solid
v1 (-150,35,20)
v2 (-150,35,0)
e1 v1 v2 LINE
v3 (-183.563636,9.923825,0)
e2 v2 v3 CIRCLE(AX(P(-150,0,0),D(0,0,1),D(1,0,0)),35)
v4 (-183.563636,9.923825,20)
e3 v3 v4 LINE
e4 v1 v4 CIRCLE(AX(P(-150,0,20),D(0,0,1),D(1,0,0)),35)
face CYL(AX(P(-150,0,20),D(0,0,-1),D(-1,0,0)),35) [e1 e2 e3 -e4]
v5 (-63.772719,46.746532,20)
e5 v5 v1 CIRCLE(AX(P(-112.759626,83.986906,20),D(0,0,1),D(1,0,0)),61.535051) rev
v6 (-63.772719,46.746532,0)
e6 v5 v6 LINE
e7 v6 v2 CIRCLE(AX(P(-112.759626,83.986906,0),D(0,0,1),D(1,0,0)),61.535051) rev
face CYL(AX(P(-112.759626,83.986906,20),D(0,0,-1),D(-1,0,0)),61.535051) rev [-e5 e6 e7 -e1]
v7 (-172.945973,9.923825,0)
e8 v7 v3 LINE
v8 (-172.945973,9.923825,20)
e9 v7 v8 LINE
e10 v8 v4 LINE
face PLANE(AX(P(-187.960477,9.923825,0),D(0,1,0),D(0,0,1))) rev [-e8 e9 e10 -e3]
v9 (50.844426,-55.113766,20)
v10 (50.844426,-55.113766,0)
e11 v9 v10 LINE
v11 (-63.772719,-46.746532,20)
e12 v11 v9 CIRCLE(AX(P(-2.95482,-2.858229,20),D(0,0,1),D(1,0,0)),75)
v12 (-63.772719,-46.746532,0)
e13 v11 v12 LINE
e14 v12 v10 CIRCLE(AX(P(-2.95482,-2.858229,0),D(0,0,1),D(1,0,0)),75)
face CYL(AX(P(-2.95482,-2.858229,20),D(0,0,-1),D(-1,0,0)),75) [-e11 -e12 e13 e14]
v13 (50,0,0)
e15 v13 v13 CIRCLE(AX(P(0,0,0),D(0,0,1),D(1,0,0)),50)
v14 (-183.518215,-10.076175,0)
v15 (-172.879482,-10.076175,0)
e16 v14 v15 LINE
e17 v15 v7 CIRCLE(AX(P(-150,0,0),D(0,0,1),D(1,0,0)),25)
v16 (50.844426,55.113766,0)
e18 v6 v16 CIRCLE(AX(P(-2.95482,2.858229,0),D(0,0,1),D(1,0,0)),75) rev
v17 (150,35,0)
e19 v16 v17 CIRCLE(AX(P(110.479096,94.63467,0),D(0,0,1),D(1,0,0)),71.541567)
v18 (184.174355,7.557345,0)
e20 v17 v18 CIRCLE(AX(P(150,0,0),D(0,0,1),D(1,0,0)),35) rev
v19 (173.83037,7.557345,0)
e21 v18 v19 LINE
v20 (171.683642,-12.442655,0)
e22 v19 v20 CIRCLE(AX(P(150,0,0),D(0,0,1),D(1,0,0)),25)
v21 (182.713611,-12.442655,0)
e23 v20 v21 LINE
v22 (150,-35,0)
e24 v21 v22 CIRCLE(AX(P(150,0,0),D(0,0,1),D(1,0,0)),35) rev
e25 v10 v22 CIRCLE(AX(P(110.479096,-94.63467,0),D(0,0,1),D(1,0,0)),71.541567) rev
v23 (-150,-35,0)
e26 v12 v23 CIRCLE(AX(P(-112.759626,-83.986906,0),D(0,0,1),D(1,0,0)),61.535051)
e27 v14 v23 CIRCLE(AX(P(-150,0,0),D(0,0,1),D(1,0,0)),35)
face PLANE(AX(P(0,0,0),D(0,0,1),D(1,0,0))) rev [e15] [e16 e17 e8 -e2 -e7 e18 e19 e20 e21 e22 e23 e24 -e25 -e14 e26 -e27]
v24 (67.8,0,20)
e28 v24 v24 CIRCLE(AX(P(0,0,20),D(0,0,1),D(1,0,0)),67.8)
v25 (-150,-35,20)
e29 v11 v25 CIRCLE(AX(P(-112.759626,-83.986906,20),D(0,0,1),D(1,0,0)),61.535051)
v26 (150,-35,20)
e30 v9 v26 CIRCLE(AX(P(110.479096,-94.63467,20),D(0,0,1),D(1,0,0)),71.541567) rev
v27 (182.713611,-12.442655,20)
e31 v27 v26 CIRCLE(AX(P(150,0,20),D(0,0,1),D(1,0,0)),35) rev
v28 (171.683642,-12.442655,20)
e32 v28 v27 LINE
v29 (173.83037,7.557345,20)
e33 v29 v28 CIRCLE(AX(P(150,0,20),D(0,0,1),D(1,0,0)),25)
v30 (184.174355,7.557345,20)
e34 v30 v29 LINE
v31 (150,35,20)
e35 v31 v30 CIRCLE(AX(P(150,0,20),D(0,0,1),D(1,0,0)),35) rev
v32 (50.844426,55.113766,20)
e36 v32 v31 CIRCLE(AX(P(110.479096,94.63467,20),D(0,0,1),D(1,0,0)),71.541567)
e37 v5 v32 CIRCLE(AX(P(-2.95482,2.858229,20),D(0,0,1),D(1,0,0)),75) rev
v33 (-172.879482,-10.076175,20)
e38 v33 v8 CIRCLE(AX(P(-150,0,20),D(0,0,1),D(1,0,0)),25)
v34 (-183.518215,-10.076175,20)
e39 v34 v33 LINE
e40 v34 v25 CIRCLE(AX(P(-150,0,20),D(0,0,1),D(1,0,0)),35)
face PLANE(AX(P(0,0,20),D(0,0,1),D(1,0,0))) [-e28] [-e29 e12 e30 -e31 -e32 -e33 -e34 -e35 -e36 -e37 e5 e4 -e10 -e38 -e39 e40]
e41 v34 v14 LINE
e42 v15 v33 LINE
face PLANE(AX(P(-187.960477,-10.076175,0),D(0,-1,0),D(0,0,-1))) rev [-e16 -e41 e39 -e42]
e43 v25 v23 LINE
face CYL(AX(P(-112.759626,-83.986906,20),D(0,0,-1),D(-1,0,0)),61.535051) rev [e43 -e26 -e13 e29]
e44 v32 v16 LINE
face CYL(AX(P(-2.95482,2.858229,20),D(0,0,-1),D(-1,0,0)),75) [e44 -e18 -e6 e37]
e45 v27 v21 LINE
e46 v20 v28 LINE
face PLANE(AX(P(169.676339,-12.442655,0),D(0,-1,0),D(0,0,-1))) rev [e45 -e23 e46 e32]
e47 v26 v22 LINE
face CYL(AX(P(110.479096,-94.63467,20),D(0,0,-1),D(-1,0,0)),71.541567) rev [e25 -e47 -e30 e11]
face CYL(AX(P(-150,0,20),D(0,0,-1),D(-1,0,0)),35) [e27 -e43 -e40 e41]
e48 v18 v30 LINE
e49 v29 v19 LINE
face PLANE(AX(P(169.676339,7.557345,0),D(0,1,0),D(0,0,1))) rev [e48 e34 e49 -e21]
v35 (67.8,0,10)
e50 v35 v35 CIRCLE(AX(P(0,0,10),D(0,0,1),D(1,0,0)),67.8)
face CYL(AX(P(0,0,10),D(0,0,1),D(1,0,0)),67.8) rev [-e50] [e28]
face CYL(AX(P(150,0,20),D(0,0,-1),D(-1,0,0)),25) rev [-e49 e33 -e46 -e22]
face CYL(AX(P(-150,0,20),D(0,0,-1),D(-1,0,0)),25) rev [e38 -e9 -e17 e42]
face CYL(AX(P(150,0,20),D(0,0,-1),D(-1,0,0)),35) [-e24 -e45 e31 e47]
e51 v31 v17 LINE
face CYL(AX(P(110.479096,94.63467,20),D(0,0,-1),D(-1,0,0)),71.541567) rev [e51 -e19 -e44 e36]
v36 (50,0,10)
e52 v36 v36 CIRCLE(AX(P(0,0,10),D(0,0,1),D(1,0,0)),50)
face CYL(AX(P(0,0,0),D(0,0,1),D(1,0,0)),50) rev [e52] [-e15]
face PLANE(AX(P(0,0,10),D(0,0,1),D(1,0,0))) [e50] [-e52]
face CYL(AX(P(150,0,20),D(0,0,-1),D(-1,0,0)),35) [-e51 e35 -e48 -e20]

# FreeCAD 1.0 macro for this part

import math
import FreeCAD as App
import Part
import Sketcher

V = App.Vector
Q = App.Units.Quantity


def add_polygon(sketch, points):
    """Adds a closed chain of lines whose ends are joined by coincident constraints."""
    first, n = sketch.GeometryCount, len(points)
    for a, b in zip(points, points[1:] + points[:1]):
        sketch.addGeometry(Part.LineSegment(App.Vector(*a, 0), App.Vector(*b, 0)), False)
    for i in range(n):
        sketch.addConstraint(Sketcher.Constraint("Coincident", first + i, 2, first + (i + 1) % n, 1))

doc = App.newDocument("Part")
body = doc.addObject("PartDesign::Body", "Body")

# Sketch on XY plane
sketch1 = body.newObject("Sketcher::SketchObject", "Sketch")
sketch1.AttachmentSupport = (doc.getObject("XY_Plane"), [""])
sketch1.MapMode = "FlatFace"
sketch1.addGeometry([
    Part.Circle(V(0, 0, 0), V(0, 0, 1), 67.8),
    Part.Circle(V(0, 0, 0), V(0, 0, 1), 50),
], False)
sketch1.addConstraint([
    Sketcher.Constraint("Coincident", 0, 3, -1, 1),
    Sketcher.Constraint("Coincident", 1, 3, -1, 1),
    Sketcher.Constraint("Diameter", 1, Q("100 mm")),
    Sketcher.Constraint("Diameter", 0, Q("135.6 mm")),
])
pad1 = body.newObject("PartDesign::Pad", "Pad")
pad1.Profile = sketch1
pad1.Length = 10

# Sketch on XY plane
sketch2 = body.newObject("Sketcher::SketchObject", "Sketch001")
sketch2.AttachmentSupport = (doc.getObject("XY_Plane"), [""])
sketch2.MapMode = "FlatFace"
sketch2.addGeometry([
    Part.ArcOfCircle(Part.Circle(V(-2.95482, 2.858229, 0), V(0, 0, 1), 75), math.radians(44.166075), math.radians(144.184478)),  # 0
    Part.ArcOfCircle(Part.Circle(V(-112.759626, 83.986906, 0), V(0, 0, 1), 61.535051), math.radians(-127.242488), math.radians(-37.242488)),  # 1
    Part.ArcOfCircle(Part.Circle(V(-150, 0, 0), V(0, 0, 1), 35), math.radians(90), math.radians(270)),  # 2
    Part.ArcOfCircle(Part.Circle(V(-112.759626, -83.986906, 0), V(0, 0, 1), 61.535051), math.radians(37.242488), math.radians(127.242488)),  # 3
    Part.ArcOfCircle(Part.Circle(V(-2.95482, -2.858229, 0), V(0, 0, 1), 75), math.radians(-144.184478), math.radians(-44.166075)),  # 4
    Part.ArcOfCircle(Part.Circle(V(110.479096, -94.63467, 0), V(0, 0, 1), 71.541567), math.radians(56.46689), math.radians(146.46689)),  # 5
    Part.ArcOfCircle(Part.Circle(V(150, 0, 0), V(0, 0, 1), 35), math.radians(-90), math.radians(90)),  # 6
    Part.ArcOfCircle(Part.Circle(V(110.479096, 94.63467, 0), V(0, 0, 1), 71.541567), math.radians(-146.46689), math.radians(-56.46689)),  # 7
    Part.Circle(V(150, 0, 0), V(0, 0, 1), 25),  # 8
    Part.Circle(V(-150, 0, 0), V(0, 0, 1), 25),  # 9
], False)
sketch2.addConstraint([
    Sketcher.Constraint("Coincident", 0, 2, 1, 2),
    Sketcher.Constraint("Coincident", 1, 1, 2, 1),
    Sketcher.Constraint("Coincident", 2, 2, 3, 2),
    Sketcher.Constraint("Coincident", 3, 1, 4, 1),
    Sketcher.Constraint("Coincident", 4, 2, 5, 2),
    Sketcher.Constraint("Coincident", 5, 1, 6, 1),
    Sketcher.Constraint("Coincident", 6, 2, 7, 2),
    Sketcher.Constraint("Coincident", 7, 1, 0, 1),
    Sketcher.Constraint("Coincident", 8, 3, 6, 3),
    Sketcher.Constraint("Coincident", 9, 3, 2, 3),
    Sketcher.Constraint("Equal", 1, 3),
    Sketcher.Constraint("Equal", 0, 4),
    Sketcher.Constraint("Equal", 2, 6),
    Sketcher.Constraint("Equal", 5, 7),
    Sketcher.Constraint("Equal", 8, 9),
    Sketcher.Constraint("Symmetric", 2, 3, 6, 3, -1, 1),
    Sketcher.Constraint("Symmetric", 2, 2, 5, 1, -2),
    Sketcher.Constraint("Symmetric", 1, 3, 3, 3, -1),
    Sketcher.Constraint("Symmetric", 0, 3, 4, 3, -1),
    Sketcher.Constraint("Symmetric", 5, 3, 7, 3, -1),
    Sketcher.Constraint("Vertical", 9, 3, 1, 1),
    Sketcher.Constraint("Diameter", 8, Q("50 mm")),
    Sketcher.Constraint("Radius", 0, Q("75 mm")),
    Sketcher.Constraint("Radius", 2, Q("35 mm")),
    Sketcher.Constraint("DistanceX", 2, 3, -1, 1, Q("150 mm")),
    Sketcher.Constraint("Radius", 1, Q("61.535051 mm")),
    Sketcher.Constraint("Radius", 5, Q("71.541567 mm")),
    Sketcher.Constraint("DistanceY", 5, 3, 0, 3, Q("97.492899 mm")),
    Sketcher.Constraint("DistanceX", 0, 2, 0, 3, Q("60.817899 mm")),
    Sketcher.Constraint("DistanceX", 0, 3, -1, 1, Q("2.95482 mm")),
    Sketcher.Constraint("DistanceY", -1, 1, 0, 3, Q("2.858229 mm")),
])
pad2 = body.newObject("PartDesign::Pad", "Pad001")
pad2.Profile = sketch2
pad2.Length = 20

# Sketch on XY plane
sketch3 = body.newObject("Sketcher::SketchObject", "Sketch002")
sketch3.AttachmentSupport = (doc.getObject("XY_Plane"), [""])
sketch3.MapMode = "FlatFace"
sketch3.AttachmentOffset = App.Placement(V(0, 0, 20), App.Rotation())
sketch3.addGeometry(Part.Circle(V(0, 0, 0), V(0, 0, 1), 67.8), False)
sketch3.addConstraint([
    Sketcher.Constraint("Coincident", 0, 3, -1, 1),
    Sketcher.Constraint("Diameter", 0, Q("135.6 mm")),
])
pocket1 = body.newObject("PartDesign::Pocket", "Pocket")
pocket1.Profile = sketch3
pocket1.Length = 10

# Sketch on XY plane
sketch4 = body.newObject("Sketcher::SketchObject", "Sketch003")
sketch4.AttachmentSupport = (doc.getObject("XY_Plane"), [""])
sketch4.MapMode = "FlatFace"
sketch4.AttachmentOffset = App.Placement(V(0, 0, 10), App.Rotation())
sketch4.addGeometry(Part.Circle(V(0, 0, 0), V(0, 0, 1), 50), False)
sketch4.addConstraint([
    Sketcher.Constraint("Coincident", 0, 3, -1, 1),
    Sketcher.Constraint("Diameter", 0, Q("100 mm")),
])
pocket2 = body.newObject("PartDesign::Pocket", "Pocket001")
pocket2.Profile = sketch4
pocket2.Type = "ThroughAll"

# Sketch on XY plane
sketch5 = body.newObject("Sketcher::SketchObject", "Sketch004")
sketch5.AttachmentSupport = (doc.getObject("XY_Plane"), [""])
sketch5.MapMode = "FlatFace"
sketch5.AttachmentOffset = App.Placement(V(0, 0, 20), App.Rotation())
add_polygon(sketch5, [(-187.960477, 9.923825), (-187.960477, -10.076175), (-172.879482, -10.076175), (-172.879482, 9.923825)])  # lines 0-3
sketch5.addConstraint([
    Sketcher.Constraint("Vertical", 0),
    Sketcher.Constraint("Horizontal", 1),
    Sketcher.Constraint("Vertical", 2),
    Sketcher.Constraint("Horizontal", 3),
    Sketcher.Constraint("DistanceY", 0, 2, 0, 1, Q("20 mm")),
    Sketcher.Constraint("DistanceX", 1, 1, 1, 2, Q("15.080995 mm")),
    Sketcher.Constraint("DistanceX", 0, 2, -1, 1, Q("187.960477 mm")),
    Sketcher.Constraint("DistanceY", 0, 2, -1, 1, Q("10.076175 mm")),
])
pocket3 = body.newObject("PartDesign::Pocket", "Pocket002")
pocket3.Profile = sketch5
pocket3.Type = "ThroughAll"

# Sketch on XY plane
sketch6 = body.newObject("Sketcher::SketchObject", "Sketch005")
sketch6.AttachmentSupport = (doc.getObject("XY_Plane"), [""])
sketch6.MapMode = "FlatFace"
sketch6.AttachmentOffset = App.Placement(V(0, 0, 20), App.Rotation())
add_polygon(sketch6, [(169.676339, 7.557345), (169.676339, -12.442655), (189.322637, -12.442655), (189.322637, 7.557345)])  # lines 0-3
sketch6.addConstraint([
    Sketcher.Constraint("Vertical", 0),
    Sketcher.Constraint("Horizontal", 1),
    Sketcher.Constraint("Vertical", 2),
    Sketcher.Constraint("Horizontal", 3),
    Sketcher.Constraint("DistanceY", 0, 2, 0, 1, Q("20 mm")),
    Sketcher.Constraint("DistanceX", 1, 1, 1, 2, Q("19.646297 mm")),
    Sketcher.Constraint("DistanceX", -1, 1, 0, 2, Q("169.676339 mm")),
    Sketcher.Constraint("DistanceY", 0, 2, -1, 1, Q("12.442655 mm")),
])
pocket4 = body.newObject("PartDesign::Pocket", "Pocket003")
pocket4.Profile = sketch6
pocket4.Type = "ThroughAll"

doc.recompute()
